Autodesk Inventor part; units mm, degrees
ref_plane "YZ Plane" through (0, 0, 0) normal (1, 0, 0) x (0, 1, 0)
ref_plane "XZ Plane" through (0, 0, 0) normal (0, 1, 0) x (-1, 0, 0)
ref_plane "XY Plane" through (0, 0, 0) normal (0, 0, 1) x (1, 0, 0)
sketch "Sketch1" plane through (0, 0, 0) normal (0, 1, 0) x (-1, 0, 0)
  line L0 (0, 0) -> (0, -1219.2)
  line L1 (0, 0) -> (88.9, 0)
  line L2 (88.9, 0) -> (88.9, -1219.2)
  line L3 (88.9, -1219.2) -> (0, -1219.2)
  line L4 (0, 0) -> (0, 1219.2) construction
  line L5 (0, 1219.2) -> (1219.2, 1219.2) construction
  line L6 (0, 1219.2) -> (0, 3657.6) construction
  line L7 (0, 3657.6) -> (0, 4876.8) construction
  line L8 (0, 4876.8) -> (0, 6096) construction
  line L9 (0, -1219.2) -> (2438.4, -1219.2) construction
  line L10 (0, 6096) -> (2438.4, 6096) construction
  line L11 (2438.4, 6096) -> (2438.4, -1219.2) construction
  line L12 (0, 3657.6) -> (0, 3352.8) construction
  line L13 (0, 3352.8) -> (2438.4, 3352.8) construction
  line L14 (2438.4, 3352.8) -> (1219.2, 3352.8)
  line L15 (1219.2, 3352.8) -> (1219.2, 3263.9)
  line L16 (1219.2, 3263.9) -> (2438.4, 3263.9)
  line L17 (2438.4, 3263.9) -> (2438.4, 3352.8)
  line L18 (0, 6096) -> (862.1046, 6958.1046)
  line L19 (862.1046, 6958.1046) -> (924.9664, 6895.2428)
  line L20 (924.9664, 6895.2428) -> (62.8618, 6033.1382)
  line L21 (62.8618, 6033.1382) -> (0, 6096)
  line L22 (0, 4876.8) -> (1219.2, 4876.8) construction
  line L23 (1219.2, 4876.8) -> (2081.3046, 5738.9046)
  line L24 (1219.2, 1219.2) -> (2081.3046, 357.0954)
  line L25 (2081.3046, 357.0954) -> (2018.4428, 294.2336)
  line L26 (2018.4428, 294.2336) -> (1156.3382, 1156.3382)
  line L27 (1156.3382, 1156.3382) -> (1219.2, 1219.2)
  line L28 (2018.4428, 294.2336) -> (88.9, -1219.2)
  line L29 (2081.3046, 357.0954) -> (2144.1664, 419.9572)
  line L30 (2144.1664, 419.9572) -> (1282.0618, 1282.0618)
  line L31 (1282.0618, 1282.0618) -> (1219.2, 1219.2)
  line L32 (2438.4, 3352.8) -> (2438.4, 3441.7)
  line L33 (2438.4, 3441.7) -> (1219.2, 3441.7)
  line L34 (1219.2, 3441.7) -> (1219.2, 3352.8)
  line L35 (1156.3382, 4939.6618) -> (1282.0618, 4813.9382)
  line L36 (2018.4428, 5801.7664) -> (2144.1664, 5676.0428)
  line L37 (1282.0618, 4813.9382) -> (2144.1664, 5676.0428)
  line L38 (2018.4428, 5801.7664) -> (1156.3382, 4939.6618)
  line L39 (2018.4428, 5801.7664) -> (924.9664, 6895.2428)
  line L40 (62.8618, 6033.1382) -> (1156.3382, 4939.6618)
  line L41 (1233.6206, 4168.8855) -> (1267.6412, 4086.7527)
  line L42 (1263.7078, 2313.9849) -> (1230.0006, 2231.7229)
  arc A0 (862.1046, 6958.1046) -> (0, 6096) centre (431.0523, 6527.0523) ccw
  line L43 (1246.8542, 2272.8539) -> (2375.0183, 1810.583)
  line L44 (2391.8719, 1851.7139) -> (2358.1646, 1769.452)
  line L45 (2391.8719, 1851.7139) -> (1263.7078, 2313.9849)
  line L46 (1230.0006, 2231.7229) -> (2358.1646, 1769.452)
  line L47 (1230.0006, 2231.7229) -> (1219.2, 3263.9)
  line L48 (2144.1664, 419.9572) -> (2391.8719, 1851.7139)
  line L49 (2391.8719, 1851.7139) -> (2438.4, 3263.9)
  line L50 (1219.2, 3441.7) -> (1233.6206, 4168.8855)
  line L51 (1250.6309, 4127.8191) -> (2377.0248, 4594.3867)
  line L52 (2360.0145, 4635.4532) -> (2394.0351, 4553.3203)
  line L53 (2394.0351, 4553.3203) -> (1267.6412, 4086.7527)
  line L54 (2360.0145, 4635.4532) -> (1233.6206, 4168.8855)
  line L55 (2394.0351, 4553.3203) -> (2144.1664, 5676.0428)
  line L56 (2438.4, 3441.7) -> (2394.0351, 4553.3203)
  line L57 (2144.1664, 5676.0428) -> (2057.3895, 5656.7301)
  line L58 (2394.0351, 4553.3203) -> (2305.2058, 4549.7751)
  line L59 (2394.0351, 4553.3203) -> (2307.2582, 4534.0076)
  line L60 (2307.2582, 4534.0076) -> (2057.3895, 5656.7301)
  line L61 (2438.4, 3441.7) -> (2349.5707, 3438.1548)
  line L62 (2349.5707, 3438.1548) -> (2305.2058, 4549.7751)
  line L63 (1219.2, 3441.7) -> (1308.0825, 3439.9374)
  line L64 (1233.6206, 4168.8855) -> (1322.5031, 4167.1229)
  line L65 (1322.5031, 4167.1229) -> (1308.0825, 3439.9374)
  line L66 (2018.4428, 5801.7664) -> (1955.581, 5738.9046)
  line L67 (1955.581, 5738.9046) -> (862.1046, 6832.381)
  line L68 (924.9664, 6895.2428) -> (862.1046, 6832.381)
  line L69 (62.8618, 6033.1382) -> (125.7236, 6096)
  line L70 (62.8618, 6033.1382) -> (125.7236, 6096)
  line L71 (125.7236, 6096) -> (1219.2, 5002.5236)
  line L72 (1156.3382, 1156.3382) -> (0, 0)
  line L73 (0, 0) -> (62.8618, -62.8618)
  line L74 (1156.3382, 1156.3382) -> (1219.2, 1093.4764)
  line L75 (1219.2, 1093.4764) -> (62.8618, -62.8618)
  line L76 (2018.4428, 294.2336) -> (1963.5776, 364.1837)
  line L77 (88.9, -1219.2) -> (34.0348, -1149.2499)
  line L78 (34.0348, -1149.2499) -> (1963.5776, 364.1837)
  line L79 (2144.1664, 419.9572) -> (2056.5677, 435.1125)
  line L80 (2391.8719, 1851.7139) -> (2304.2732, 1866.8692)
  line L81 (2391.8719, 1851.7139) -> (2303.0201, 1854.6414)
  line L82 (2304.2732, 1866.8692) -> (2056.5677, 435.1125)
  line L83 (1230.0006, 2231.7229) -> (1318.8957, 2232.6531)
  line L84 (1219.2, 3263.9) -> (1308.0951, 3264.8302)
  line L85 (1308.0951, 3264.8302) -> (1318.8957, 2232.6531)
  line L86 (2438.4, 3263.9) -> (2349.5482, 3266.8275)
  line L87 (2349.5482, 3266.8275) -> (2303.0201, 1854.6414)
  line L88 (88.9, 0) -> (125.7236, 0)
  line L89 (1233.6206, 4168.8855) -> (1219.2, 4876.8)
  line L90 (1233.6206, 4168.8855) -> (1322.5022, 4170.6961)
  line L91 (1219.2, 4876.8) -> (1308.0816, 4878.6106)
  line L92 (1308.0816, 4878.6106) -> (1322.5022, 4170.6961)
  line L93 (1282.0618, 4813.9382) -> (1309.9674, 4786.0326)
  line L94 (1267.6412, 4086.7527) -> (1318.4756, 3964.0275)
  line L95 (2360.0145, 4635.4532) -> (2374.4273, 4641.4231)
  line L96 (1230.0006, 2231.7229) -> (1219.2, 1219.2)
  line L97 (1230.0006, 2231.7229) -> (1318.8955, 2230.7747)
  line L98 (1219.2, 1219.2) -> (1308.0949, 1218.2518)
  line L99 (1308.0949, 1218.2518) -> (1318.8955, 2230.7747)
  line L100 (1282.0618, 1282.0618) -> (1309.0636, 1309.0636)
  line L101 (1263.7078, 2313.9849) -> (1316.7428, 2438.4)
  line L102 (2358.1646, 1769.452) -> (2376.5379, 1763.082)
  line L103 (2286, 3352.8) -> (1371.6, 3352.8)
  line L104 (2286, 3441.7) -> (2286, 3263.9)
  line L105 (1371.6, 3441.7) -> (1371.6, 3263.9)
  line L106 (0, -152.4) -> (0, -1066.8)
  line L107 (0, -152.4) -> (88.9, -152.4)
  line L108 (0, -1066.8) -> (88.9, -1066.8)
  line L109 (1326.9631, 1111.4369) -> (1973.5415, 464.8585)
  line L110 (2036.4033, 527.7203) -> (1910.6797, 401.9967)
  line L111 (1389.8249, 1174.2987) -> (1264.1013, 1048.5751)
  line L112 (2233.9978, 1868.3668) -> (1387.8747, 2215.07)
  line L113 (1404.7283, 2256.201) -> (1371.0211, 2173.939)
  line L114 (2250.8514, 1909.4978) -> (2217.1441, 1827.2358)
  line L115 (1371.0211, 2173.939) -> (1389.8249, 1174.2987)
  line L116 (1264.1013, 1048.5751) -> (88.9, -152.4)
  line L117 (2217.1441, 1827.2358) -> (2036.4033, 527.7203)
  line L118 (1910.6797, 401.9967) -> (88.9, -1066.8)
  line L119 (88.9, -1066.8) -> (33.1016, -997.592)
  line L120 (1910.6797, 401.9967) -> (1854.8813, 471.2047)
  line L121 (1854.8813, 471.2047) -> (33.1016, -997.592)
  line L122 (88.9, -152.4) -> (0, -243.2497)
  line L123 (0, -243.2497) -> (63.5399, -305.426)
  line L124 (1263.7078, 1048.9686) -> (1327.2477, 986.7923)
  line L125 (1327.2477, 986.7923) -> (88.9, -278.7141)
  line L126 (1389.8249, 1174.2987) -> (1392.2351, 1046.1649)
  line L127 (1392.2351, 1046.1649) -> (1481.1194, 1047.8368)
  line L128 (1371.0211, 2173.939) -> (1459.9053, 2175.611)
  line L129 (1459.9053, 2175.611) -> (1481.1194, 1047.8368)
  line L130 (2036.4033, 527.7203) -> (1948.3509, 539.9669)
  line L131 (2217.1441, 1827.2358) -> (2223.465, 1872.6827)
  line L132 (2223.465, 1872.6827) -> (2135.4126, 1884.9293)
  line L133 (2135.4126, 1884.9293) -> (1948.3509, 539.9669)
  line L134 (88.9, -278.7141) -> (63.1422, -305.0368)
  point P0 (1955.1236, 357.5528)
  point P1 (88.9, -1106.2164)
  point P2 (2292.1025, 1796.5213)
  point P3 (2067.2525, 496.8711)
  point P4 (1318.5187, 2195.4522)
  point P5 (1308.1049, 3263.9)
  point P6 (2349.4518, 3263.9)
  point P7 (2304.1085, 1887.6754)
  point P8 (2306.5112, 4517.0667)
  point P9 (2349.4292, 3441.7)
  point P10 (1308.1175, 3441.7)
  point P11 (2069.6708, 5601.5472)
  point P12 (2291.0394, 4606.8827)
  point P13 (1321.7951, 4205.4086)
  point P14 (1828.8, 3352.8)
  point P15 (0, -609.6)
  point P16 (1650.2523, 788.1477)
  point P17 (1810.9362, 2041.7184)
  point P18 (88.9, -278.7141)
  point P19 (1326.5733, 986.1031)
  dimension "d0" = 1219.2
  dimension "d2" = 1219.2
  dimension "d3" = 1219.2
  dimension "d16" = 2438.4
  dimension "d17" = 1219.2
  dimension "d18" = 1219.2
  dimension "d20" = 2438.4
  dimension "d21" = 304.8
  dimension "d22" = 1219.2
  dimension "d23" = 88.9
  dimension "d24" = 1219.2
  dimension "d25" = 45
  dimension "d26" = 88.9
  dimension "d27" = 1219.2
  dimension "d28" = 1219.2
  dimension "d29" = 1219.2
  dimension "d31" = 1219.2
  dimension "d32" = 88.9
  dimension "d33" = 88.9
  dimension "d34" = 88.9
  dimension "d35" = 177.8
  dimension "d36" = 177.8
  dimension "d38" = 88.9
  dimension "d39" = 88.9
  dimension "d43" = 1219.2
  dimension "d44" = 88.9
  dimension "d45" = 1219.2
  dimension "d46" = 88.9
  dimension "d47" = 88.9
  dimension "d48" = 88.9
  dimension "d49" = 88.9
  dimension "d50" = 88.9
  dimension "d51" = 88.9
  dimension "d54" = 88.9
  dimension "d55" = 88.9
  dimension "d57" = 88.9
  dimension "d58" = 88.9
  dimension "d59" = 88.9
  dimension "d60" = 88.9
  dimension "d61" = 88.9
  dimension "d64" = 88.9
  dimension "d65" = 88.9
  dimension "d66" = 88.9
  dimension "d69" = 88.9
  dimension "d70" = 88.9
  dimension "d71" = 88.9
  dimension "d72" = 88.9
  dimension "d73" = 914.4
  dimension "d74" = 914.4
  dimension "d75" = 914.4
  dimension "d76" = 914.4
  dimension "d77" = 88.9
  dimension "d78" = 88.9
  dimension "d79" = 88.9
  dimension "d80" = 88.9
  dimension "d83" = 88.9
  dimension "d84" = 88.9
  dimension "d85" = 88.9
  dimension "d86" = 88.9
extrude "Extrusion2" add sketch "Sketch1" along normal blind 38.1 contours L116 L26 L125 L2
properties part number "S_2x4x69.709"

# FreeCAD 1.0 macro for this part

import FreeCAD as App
import Part
import Sketcher

V = App.Vector
Q = App.Units.Quantity

doc = App.newDocument("Part")
body = doc.addObject("PartDesign::Body", "Body")

# Sketch on XZ plane
sketch1 = body.newObject("Sketcher::SketchObject", "Sketch")
sketch1.AttachmentSupport = (doc.getObject("XZ_Plane"), [""])
sketch1.MapMode = "FlatFace"
sketch1.addGeometry(Part.LineSegment(V(-1264, 1049, 0), V(-89, -152, 0)), False)
sketch1.addGeometry(Part.LineSegment(V(-89, -152, 0), V(-89, -279, 0)), False)
sketch1.addGeometry(Part.LineSegment(V(-89, -279, 0), V(-1327, 986, 0)), False)
sketch1.addGeometry(Part.LineSegment(V(-1327, 986, 0), V(-1264, 1049, 0)), False)
sketch1.addConstraint(Sketcher.Constraint("Coincident", 0, 2, 1, 1))
sketch1.addConstraint(Sketcher.Constraint("Coincident", 1, 2, 2, 1))
sketch1.addConstraint(Sketcher.Constraint("Coincident", 2, 2, 3, 1))
sketch1.addConstraint(Sketcher.Constraint("Coincident", 3, 2, 0, 1))
sketch1.addConstraint(Sketcher.Constraint("Vertical", 1))
sketch1.addConstraint(Sketcher.Constraint("Parallel", 0, 2))
sketch1.addConstraint(Sketcher.Constraint("Angle", 3, Q("45 deg")))
sketch1.addConstraint(Sketcher.Constraint("DistanceX", 0, 2, -1, 1, Q("3.5 in")))
sketch1.addConstraint(Sketcher.Constraint("DistanceY", 0, 2, -1, 1, Q("6 in")))
sketch1.addConstraint(Sketcher.Constraint("DistanceY", 1, 2, 1, 1, Q("4.973 in")))
sketch1.addConstraint(Sketcher.Constraint("Distance", 0, Q("66.1539 in")))
sketch1.addConstraint(Sketcher.Constraint("Distance", 3, Q("3.4783 in")))
pad1 = body.newObject("PartDesign::Pad", "Pad")
pad1.Profile = sketch1
pad1.Length = Q("1.5 in")
pad1.Reversed = True

doc.recompute()
